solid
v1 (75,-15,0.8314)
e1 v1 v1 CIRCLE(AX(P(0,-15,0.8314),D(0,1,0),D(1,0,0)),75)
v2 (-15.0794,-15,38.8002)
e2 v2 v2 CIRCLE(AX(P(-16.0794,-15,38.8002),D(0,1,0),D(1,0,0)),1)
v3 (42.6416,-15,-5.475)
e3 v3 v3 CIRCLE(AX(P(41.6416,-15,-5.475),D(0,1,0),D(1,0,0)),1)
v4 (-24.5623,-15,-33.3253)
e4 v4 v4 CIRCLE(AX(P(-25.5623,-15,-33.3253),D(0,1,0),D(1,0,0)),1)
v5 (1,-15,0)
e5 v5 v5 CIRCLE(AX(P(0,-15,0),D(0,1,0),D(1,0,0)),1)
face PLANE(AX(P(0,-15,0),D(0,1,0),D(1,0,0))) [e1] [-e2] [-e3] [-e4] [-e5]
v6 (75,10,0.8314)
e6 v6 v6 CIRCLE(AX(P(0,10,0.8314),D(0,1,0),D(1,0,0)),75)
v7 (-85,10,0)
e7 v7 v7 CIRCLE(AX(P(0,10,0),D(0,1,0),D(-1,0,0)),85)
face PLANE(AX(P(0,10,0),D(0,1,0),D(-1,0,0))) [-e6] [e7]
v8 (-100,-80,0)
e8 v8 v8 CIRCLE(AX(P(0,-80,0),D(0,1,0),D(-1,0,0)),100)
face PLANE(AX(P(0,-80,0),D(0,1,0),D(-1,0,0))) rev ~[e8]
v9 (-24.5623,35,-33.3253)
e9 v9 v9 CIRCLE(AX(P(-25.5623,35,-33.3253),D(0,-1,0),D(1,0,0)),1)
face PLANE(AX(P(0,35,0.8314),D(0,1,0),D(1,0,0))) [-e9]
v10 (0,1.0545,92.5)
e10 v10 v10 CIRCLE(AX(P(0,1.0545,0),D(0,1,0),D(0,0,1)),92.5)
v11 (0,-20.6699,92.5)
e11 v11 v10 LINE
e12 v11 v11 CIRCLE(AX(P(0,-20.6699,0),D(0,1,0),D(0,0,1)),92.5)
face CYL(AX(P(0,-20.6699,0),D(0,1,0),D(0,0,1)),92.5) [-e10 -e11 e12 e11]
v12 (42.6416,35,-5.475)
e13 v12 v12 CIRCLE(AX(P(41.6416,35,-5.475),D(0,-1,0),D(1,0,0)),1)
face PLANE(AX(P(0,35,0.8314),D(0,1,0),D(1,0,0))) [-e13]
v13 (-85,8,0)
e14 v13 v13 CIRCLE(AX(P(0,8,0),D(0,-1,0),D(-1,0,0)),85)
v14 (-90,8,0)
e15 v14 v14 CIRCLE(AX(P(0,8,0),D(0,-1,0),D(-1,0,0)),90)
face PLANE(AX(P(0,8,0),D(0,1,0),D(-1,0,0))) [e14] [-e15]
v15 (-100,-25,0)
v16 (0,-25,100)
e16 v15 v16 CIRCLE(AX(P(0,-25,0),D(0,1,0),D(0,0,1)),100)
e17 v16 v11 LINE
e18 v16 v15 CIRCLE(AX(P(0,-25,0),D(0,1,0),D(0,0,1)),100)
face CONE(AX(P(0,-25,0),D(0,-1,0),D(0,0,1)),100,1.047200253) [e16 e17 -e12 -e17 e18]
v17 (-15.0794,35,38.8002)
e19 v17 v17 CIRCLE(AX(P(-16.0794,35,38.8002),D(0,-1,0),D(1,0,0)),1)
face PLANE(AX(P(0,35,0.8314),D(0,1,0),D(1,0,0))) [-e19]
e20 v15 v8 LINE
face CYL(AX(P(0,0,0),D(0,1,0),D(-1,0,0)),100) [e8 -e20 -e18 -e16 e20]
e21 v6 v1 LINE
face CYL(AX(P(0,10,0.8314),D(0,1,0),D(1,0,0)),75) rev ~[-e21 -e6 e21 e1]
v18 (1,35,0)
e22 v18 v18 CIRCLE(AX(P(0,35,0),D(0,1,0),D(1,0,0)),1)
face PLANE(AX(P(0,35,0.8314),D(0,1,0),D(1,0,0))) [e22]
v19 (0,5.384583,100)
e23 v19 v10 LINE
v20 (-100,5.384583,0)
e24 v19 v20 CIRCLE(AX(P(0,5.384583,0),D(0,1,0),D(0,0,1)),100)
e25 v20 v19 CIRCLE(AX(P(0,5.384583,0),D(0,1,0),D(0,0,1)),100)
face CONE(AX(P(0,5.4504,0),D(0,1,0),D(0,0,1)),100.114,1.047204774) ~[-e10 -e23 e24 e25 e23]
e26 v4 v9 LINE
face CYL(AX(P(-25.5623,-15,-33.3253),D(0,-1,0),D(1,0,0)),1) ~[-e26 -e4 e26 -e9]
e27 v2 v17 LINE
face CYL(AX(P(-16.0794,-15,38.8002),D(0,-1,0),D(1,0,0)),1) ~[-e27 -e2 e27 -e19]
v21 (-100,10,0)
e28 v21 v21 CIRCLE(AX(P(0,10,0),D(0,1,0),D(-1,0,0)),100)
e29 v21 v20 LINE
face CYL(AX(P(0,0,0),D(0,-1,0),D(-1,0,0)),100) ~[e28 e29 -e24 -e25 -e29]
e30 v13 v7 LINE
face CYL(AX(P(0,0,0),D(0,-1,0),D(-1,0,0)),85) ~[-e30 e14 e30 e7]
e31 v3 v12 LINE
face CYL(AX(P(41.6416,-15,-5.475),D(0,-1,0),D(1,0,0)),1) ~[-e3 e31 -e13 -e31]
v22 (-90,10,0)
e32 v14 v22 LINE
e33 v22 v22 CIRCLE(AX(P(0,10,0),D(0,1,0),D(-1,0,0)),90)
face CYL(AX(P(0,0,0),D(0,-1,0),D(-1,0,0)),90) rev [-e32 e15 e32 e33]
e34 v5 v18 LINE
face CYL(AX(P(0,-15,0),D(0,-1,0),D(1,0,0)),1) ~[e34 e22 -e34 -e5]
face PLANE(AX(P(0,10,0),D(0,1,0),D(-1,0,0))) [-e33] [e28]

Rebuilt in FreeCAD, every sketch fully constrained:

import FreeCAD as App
import Part
import Sketcher
Q = App.Units.Quantity

doc = App.newDocument("Part")
body = doc.addObject("PartDesign::Body", "Body")

# Sketch on XZ plane
sketch1 = body.newObject("Sketcher::SketchObject", "Sketch")
sketch1.AttachmentSupport = (doc.getObject("XZ_Plane"), [""])
sketch1.MapMode = "FlatFace"
sketch1.addGeometry(Part.Circle(App.Vector(0, 0, 0), App.Vector(0, 0, 1), 100), False)
sketch1.addConstraint([
    Sketcher.Constraint("Coincident", 0, 3, -1, 1),
    Sketcher.Constraint("Diameter", 0, 200.0),
])
pad1 = body.newObject("PartDesign::Pad", "Pad")
pad1.Profile = sketch1
pad1.Length = 8
pad1.Reversed = True

# Sketch on XZ plane
sketch2 = body.newObject("Sketcher::SketchObject", "Sketch001")
sketch2.AttachmentSupport = (doc.getObject("XZ_Plane"), [""])
sketch2.MapMode = "FlatFace"
sketch2.addGeometry([
    Part.Circle(App.Vector(0, 0, 0), App.Vector(0, 0, 1), 100),
    Part.Circle(App.Vector(0, 0, 0), App.Vector(0, 0, 1), 90),
    Part.Circle(App.Vector(0, 0, 0), App.Vector(0, 0, 1), 85),
], False)
sketch2.addConstraint([
    Sketcher.Constraint("Coincident", 0, 3, -1, 1),
    Sketcher.Constraint("Coincident", 1, 3, -1, 1),
    Sketcher.Constraint("Coincident", 2, 3, -1, 1),
    Sketcher.Constraint("Diameter", 0, 200.0),
    Sketcher.Constraint("Diameter", 1, 180.0),
    Sketcher.Constraint("Diameter", 2, 170.0),
])
pad2 = body.newObject("PartDesign::Pad", "Pad001")
pad2.Profile = sketch2
pad2.Length = 10
pad2.Reversed = True

# Sketch on XZ plane
sketch3 = body.newObject("Sketcher::SketchObject", "Sketch002")
sketch3.AttachmentSupport = (doc.getObject("XZ_Plane"), [""])
sketch3.MapMode = "FlatFace"
sketch3.addGeometry(Part.Circle(App.Vector(0, 0, 0), App.Vector(0, 0, 1), 100), False)
sketch3.addConstraint([
    Sketcher.Constraint("Coincident", 0, 3, -1, 1),
    Sketcher.Constraint("Diameter", 0, 200.0),
])
pad3 = body.newObject("PartDesign::Pad", "Pad002")
pad3.Profile = sketch3
pad3.Length = 80

# Sketch on XZ plane
sketch4 = body.newObject("Sketcher::SketchObject", "Sketch003")
sketch4.AttachmentSupport = (doc.getObject("XZ_Plane"), [""])
sketch4.MapMode = "FlatFace"
sketch4.AttachmentOffset = App.Placement(App.Vector(0, 0, -10), App.Rotation())
sketch4.addGeometry(Part.Circle(App.Vector(0, 1, 0), App.Vector(0, 0, 1), 75), False)
sketch4.addConstraint([
    Sketcher.Constraint("PointOnObject", 0, 3, -2),
    Sketcher.Constraint("Diameter", 0, 150.0),
    Sketcher.Constraint("DistanceY", -1, 1, 0, 3, 0.8314),
])
pocket1 = body.newObject("PartDesign::Pocket", "Pocket")
pocket1.Profile = sketch4
pocket1.Length = 25
pocket1.Reversed = True

# Sketch on YZ plane
sketch5 = body.newObject("Sketcher::SketchObject", "Sketch004")
sketch5.AttachmentSupport = (doc.getObject("YZ_Plane"), [""])
sketch5.MapMode = "FlatFace"
sketch5.addGeometry([
    Part.LineSegment(App.Vector(1, 92, 0), App.Vector(5, 100, 0)),
    Part.LineSegment(App.Vector(5, 100, 0), App.Vector(-25, 100, 0)),
    Part.LineSegment(App.Vector(-25, 100, 0), App.Vector(-21, 92, 0)),
    Part.LineSegment(App.Vector(-21, 92, 0), App.Vector(1, 92, 0)),
], False)
sketch5.addConstraint([
    Sketcher.Constraint("Coincident", 0, 2, 1, 1),
    Sketcher.Constraint("Coincident", 1, 2, 2, 1),
    Sketcher.Constraint("Coincident", 2, 2, 3, 1),
    Sketcher.Constraint("Coincident", 3, 2, 0, 1),
    Sketcher.Constraint("Horizontal", 1),
    Sketcher.Constraint("Horizontal", 3),
    Sketcher.Constraint("Equal", 0, 2),
    Sketcher.Constraint("Angle", 0, Q("60.0004 deg")),
    Sketcher.Constraint("DistanceY", -1, 1, 0, 2, 100.0),
    Sketcher.Constraint("DistanceX", 1, 2, -1, 1, 25.0),
    Sketcher.Constraint("DistanceY", -1, 1, 2, 2, 92.5),
    Sketcher.Constraint("DistanceX", 1, 2, 1, 1, 30.3846),
])
groove = body.newObject("PartDesign::Groove", "Groove")
groove.Profile = sketch5
groove.ReferenceAxis = (sketch5, ["H_Axis"])
groove.Angle = 360

# Sketch on XZ plane
sketch6 = body.newObject("Sketcher::SketchObject", "Sketch005")
sketch6.AttachmentSupport = (doc.getObject("XZ_Plane"), [""])
sketch6.MapMode = "FlatFace"
sketch6.AttachmentOffset = App.Placement(App.Vector(0, 0, 15), App.Rotation())
sketch6.addGeometry([
    Part.Circle(App.Vector(41.6, -5.5, 0), App.Vector(0, 0, 1), 1),
    Part.Circle(App.Vector(-16.1, 38.8, 0), App.Vector(0, 0, 1), 1),
    Part.Circle(App.Vector(-25.6, -33.3, 0), App.Vector(0, 0, 1), 1),
    Part.Circle(App.Vector(0, 0, 0), App.Vector(0, 0, 1), 1),
], False)
sketch6.addConstraint([
    Sketcher.Constraint("Coincident", 3, 3, -1, 1),
    Sketcher.Constraint("Equal", 0, 1),
    Sketcher.Constraint("Equal", 1, 2),
    Sketcher.Constraint("Equal", 2, 3),
    Sketcher.Constraint("Diameter", 0, 2.0),
    Sketcher.Constraint("DistanceY", 0, 3, -1, 1, 5.475),
    Sketcher.Constraint("DistanceX", 1, 3, 0, 3, 57.721),
    Sketcher.Constraint("DistanceX", 2, 3, 0, 3, 67.204),
    Sketcher.Constraint("DistanceX", -1, 1, 0, 3, 41.6416),
    Sketcher.Constraint("DistanceY", -1, 1, 1, 3, 38.8002),
    Sketcher.Constraint("DistanceY", 2, 3, -1, 1, 33.3253),
])
pad4 = body.newObject("PartDesign::Pad", "Pad003")
pad4.Profile = sketch6
pad4.Length = 50
pad4.Reversed = True

doc.recompute()
